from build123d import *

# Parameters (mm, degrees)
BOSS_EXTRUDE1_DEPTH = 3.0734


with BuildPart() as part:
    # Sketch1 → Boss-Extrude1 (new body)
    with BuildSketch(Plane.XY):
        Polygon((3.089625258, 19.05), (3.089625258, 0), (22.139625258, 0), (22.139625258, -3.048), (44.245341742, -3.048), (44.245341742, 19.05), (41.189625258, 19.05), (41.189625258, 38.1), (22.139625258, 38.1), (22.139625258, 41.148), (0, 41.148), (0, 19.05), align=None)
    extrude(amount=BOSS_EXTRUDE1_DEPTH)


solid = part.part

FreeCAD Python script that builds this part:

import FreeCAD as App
import Part
import Sketcher
from FreeCAD import Vector
Q = App.Units.Quantity

doc = App.newDocument("Part")
params = doc.addObject("Spreadsheet::Sheet", "Params")
for row, (alias, value) in enumerate([
    ("sketch1_width", "0.75 in"),
    ("sketch1_height", "0.12 in"),
    ("pad1_length", "0.121 in"),
], start=1):
    params.set(f"A{row}", alias)
    params.set(f"B{row}", "=" + value)
    params.setAlias(f"B{row}", alias)

body = doc.addObject("PartDesign::Body", "Body")

# Sketch on XY plane
sketch1 = body.newObject("Sketcher::SketchObject", "Sketch")
sketch1.AttachmentSupport = (doc.getObject("XY_Plane"), [""])
sketch1.MapMode = "FlatFace"
sketch1.addGeometry(Part.LineSegment(Vector(3.1, 19.1, 0), Vector(3.1, 0, 0)), False)
sketch1.addGeometry(Part.LineSegment(Vector(3.1, 0, 0), Vector(22.1, 0, 0)), False)
sketch1.addGeometry(Part.LineSegment(Vector(22.1, 0, 0), Vector(22.1, -3, 0)), False)
sketch1.addGeometry(Part.LineSegment(Vector(22.1, -3, 0), Vector(44.2, -3, 0)), False)
sketch1.addGeometry(Part.LineSegment(Vector(44.2, -3, 0), Vector(44.2, 19.1, 0)), False)
sketch1.addGeometry(Part.LineSegment(Vector(44.2, 19.1, 0), Vector(41.2, 19.1, 0)), False)
sketch1.addGeometry(Part.LineSegment(Vector(41.2, 19.1, 0), Vector(41.2, 38.1, 0)), False)
sketch1.addGeometry(Part.LineSegment(Vector(41.2, 38.1, 0), Vector(22.1, 38.1, 0)), False)
sketch1.addGeometry(Part.LineSegment(Vector(22.1, 38.1, 0), Vector(22.1, 41.1, 0)), False)
sketch1.addGeometry(Part.LineSegment(Vector(22.1, 41.1, 0), Vector(0, 41.1, 0)), False)
sketch1.addGeometry(Part.LineSegment(Vector(0, 41.1, 0), Vector(0, 19.1, 0)), False)
sketch1.addGeometry(Part.LineSegment(Vector(0, 19.1, 0), Vector(3.1, 19.1, 0)), False)
sketch1.addConstraint(Sketcher.Constraint("Coincident", 0, 2, 1, 1))
sketch1.addConstraint(Sketcher.Constraint("Coincident", 1, 2, 2, 1))
sketch1.addConstraint(Sketcher.Constraint("Coincident", 2, 2, 3, 1))
sketch1.addConstraint(Sketcher.Constraint("Coincident", 3, 2, 4, 1))
sketch1.addConstraint(Sketcher.Constraint("Coincident", 4, 2, 5, 1))
sketch1.addConstraint(Sketcher.Constraint("Coincident", 5, 2, 6, 1))
sketch1.addConstraint(Sketcher.Constraint("Coincident", 6, 2, 7, 1))
sketch1.addConstraint(Sketcher.Constraint("Coincident", 7, 2, 8, 1))
sketch1.addConstraint(Sketcher.Constraint("Coincident", 8, 2, 9, 1))
sketch1.addConstraint(Sketcher.Constraint("Coincident", 9, 2, 10, 1))
sketch1.addConstraint(Sketcher.Constraint("Coincident", 10, 2, 11, 1))
sketch1.addConstraint(Sketcher.Constraint("Coincident", 11, 2, 0, 1))
sketch1.addConstraint(Sketcher.Constraint("Vertical", 0))
sketch1.addConstraint(Sketcher.Constraint("Horizontal", 1))
sketch1.addConstraint(Sketcher.Constraint("Vertical", 2))
sketch1.addConstraint(Sketcher.Constraint("Horizontal", 3))
sketch1.addConstraint(Sketcher.Constraint("Vertical", 4))
sketch1.addConstraint(Sketcher.Constraint("Horizontal", 5))
sketch1.addConstraint(Sketcher.Constraint("Vertical", 6))
sketch1.addConstraint(Sketcher.Constraint("Horizontal", 7))
sketch1.addConstraint(Sketcher.Constraint("Vertical", 8))
sketch1.addConstraint(Sketcher.Constraint("Horizontal", 9))
sketch1.addConstraint(Sketcher.Constraint("Vertical", 10))
sketch1.addConstraint(Sketcher.Constraint("Horizontal", 11))
sketch1.addConstraint(Sketcher.Constraint("PointOnObject", 0, 2, -1))
sketch1.addConstraint(Sketcher.Constraint("PointOnObject", 9, 2, -2))
sketch1.addConstraint(Sketcher.Constraint("Horizontal", 5, 2, 10, 2))
sketch1.addConstraint(Sketcher.Constraint("Vertical", 2, 2, 7, 2))
sketch1.addConstraint(Sketcher.Constraint("Equal", 1, 7))
sketch1.addConstraint(Sketcher.Constraint("Equal", 7, 0))
sketch1.addConstraint(Sketcher.Constraint("Equal", 0, 6))
sketch1.addConstraint(Sketcher.Constraint("Equal", 2, 8))
sketch1.addConstraint(Sketcher.Constraint("DistanceX", 1, 1, 1, 2, Q("0.75 in")))
sketch1.addConstraint(Sketcher.Constraint("DistanceY", 2, 2, 2, 1, Q("0.12 in")))
sketch1.addConstraint(Sketcher.Constraint("DistanceX", 3, 1, 3, 2, 22.105716))
sketch1.addConstraint(Sketcher.Constraint("DistanceX", 9, 2, 9, 1, 22.139625))
sketch1.setExpression("Constraints[32]", "Params.sketch1_width")
sketch1.setExpression("Constraints[33]", "Params.sketch1_height")
pad1 = body.newObject("PartDesign::Pad", "Pad")
pad1.Profile = sketch1
pad1.setExpression("Length", "Params.pad1_length")

doc.recompute()
